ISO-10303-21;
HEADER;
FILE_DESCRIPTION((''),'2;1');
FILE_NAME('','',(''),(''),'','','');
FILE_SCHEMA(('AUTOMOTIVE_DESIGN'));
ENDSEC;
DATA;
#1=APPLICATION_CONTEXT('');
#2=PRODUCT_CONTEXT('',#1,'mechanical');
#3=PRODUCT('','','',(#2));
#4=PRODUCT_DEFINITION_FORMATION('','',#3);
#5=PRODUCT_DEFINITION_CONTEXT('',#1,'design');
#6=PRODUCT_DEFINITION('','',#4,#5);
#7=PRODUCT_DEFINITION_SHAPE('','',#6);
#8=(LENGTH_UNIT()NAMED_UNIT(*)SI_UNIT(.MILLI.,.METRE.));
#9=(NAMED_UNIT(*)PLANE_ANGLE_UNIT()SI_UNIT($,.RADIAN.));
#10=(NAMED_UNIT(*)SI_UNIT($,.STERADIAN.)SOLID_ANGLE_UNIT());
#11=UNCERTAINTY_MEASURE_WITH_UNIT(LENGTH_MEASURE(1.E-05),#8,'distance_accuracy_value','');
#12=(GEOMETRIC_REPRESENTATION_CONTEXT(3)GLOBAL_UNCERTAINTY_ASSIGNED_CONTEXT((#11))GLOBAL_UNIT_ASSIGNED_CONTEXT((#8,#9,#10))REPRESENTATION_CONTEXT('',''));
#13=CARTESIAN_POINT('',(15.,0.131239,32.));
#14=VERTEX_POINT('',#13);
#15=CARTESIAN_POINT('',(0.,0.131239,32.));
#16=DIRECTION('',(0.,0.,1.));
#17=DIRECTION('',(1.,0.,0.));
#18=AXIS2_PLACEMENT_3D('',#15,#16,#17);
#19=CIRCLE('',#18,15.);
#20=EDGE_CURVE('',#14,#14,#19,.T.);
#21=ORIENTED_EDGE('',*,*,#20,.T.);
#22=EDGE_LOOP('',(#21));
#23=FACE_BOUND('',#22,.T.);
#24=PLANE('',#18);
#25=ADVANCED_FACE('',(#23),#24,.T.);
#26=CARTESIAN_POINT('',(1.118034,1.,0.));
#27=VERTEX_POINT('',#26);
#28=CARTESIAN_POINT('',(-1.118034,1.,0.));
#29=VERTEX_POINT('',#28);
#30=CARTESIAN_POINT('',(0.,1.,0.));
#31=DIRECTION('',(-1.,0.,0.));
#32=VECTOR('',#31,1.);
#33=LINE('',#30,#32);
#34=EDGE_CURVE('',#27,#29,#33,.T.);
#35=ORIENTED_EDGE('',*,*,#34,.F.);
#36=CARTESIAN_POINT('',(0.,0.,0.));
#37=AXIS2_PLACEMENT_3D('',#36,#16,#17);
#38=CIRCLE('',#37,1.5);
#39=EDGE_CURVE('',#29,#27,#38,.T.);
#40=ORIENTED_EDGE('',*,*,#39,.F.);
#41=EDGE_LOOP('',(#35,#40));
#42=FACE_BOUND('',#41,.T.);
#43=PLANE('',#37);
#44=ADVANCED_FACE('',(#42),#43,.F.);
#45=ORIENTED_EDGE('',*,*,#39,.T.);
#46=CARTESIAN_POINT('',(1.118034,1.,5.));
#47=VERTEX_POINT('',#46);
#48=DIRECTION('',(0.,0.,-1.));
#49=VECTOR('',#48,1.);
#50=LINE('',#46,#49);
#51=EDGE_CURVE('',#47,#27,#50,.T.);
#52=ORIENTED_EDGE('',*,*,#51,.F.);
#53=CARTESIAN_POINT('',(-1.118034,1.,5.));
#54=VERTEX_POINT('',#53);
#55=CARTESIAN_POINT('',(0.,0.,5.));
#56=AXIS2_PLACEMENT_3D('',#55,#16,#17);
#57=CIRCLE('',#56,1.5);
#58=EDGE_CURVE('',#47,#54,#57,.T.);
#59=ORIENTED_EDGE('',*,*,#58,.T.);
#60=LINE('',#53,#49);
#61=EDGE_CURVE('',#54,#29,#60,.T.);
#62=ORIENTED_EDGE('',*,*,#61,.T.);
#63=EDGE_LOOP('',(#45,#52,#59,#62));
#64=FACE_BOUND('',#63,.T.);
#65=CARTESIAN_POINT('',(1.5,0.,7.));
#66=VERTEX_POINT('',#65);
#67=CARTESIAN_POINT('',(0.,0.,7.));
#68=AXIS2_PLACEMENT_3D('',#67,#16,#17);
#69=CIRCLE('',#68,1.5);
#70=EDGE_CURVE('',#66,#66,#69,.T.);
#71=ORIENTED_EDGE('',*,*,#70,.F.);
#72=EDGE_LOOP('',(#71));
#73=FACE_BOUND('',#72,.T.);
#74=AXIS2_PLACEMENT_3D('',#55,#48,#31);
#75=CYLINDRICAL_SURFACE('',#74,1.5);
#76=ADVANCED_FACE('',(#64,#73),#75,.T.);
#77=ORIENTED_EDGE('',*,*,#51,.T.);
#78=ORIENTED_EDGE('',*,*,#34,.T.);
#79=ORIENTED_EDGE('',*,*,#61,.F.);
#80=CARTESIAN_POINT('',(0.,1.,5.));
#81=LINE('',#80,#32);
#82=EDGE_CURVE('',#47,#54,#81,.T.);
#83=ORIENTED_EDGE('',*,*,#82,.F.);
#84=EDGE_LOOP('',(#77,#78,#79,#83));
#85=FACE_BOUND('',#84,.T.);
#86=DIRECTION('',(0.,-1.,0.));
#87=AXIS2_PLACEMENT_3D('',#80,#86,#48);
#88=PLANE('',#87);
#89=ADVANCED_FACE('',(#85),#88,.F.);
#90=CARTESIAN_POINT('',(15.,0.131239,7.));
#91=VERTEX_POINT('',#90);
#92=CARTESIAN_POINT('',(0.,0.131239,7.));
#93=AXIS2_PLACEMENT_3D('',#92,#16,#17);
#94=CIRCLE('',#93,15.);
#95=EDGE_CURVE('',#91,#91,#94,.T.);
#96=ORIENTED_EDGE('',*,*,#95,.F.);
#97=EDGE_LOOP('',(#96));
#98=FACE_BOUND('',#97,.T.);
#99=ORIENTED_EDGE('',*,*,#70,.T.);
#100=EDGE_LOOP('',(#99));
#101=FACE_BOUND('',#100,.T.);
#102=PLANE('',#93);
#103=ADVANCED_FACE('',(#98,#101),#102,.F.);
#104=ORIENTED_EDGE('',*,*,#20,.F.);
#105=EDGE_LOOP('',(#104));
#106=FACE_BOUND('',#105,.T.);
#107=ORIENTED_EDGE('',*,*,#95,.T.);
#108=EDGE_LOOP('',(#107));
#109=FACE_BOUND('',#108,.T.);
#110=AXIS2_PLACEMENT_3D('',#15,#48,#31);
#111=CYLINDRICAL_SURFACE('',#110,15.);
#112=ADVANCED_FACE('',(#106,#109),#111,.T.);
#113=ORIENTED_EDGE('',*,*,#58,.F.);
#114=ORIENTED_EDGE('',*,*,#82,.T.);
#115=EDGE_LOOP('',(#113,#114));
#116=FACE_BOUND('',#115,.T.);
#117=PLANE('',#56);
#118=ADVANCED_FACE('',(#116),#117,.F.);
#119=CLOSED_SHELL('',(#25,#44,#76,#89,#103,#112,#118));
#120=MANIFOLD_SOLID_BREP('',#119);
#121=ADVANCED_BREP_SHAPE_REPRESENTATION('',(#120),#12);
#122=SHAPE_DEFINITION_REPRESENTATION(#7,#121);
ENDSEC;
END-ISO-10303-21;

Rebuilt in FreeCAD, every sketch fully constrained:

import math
import FreeCAD as App
import Part
import Sketcher

doc = App.newDocument("Part")
body = doc.addObject("PartDesign::Body", "Body")

# Sketch on XY plane
sketch1 = doc.addObject("Sketcher::SketchObject", "Sketch")
body.addObject(sketch1)
sketch1.AttachmentSupport = (doc.XY_Plane, [""])
sketch1.MapMode = "FlatFace"
sketch1.addGeometry([
    Part.ArcOfCircle(Part.Circle(App.Vector(0, 0, 0), App.Vector(0, 0, 1), 1.5), math.radians(138.189685), math.radians(270)),
    Part.ArcOfCircle(Part.Circle(App.Vector(0, 0, 0), App.Vector(0, 0, 1), 1.5), math.radians(-90), math.radians(0)),
    Part.ArcOfCircle(Part.Circle(App.Vector(0, 0, 0), App.Vector(0, 0, 1), 1.5), math.radians(0), math.radians(41.810315)),
    Part.LineSegment(App.Vector(1.118034, 1, 0), App.Vector(-1.118034, 1, 0)),
], False)
sketch1.addConstraint([
    Sketcher.Constraint("Tangent", 0, 2, 1, 1),
    Sketcher.Constraint("Tangent", 1, 2, 2, 1),
    Sketcher.Constraint("Coincident", 2, 2, 3, 1),
    Sketcher.Constraint("Coincident", 3, 2, 0, 1),
    Sketcher.Constraint("Horizontal", 3),
    Sketcher.Constraint("Coincident", 0, 3, -1, 1),
    Sketcher.Constraint("Coincident", 2, 3, -1, 1),
    Sketcher.Constraint("PointOnObject", 0, 2, -2),
    Sketcher.Constraint("PointOnObject", 1, 2, -1),
    Sketcher.Constraint("Radius", 0, 1.5),
    Sketcher.Constraint("DistanceY", -1, 1, 2, 2, 1.0),
])
pad1 = doc.addObject("PartDesign::Pad", "Pad")
body.addObject(pad1)
pad1.Profile = sketch1
pad1.Length = 5

# Sketch on XY plane
sketch2 = doc.addObject("Sketcher::SketchObject", "Sketch001")
body.addObject(sketch2)
sketch2.AttachmentSupport = (doc.XY_Plane, [""])
sketch2.MapMode = "FlatFace"
sketch2.AttachmentOffset = App.Placement(App.Vector(0, 0, 5), App.Rotation())
sketch2.addGeometry(Part.Circle(App.Vector(0, 0, 0), App.Vector(0, 0, 1), 1.5), False)
sketch2.addConstraint([
    Sketcher.Constraint("Coincident", 0, 3, -1, 1),
    Sketcher.Constraint("Diameter", 0, 3.0),
])
pad2 = doc.addObject("PartDesign::Pad", "Pad001")
body.addObject(pad2)
pad2.Profile = sketch2
pad2.Length = 2

# Sketch on XY plane
sketch3 = doc.addObject("Sketcher::SketchObject", "Sketch002")
body.addObject(sketch3)
sketch3.AttachmentSupport = (doc.XY_Plane, [""])
sketch3.MapMode = "FlatFace"
sketch3.AttachmentOffset = App.Placement(App.Vector(0, 0, 7), App.Rotation())
sketch3.addGeometry(Part.Circle(App.Vector(0, 0.131239, 0), App.Vector(0, 0, 1), 15), False)
sketch3.addConstraint([
    Sketcher.Constraint("PointOnObject", 0, 3, -2),
    Sketcher.Constraint("Diameter", 0, 30.0),
    Sketcher.Constraint("DistanceY", -1, 1, 0, 3, 0.131239),
])
pad3 = doc.addObject("PartDesign::Pad", "Pad002")
body.addObject(pad3)
pad3.Profile = sketch3
pad3.Length = 25

doc.recompute()
